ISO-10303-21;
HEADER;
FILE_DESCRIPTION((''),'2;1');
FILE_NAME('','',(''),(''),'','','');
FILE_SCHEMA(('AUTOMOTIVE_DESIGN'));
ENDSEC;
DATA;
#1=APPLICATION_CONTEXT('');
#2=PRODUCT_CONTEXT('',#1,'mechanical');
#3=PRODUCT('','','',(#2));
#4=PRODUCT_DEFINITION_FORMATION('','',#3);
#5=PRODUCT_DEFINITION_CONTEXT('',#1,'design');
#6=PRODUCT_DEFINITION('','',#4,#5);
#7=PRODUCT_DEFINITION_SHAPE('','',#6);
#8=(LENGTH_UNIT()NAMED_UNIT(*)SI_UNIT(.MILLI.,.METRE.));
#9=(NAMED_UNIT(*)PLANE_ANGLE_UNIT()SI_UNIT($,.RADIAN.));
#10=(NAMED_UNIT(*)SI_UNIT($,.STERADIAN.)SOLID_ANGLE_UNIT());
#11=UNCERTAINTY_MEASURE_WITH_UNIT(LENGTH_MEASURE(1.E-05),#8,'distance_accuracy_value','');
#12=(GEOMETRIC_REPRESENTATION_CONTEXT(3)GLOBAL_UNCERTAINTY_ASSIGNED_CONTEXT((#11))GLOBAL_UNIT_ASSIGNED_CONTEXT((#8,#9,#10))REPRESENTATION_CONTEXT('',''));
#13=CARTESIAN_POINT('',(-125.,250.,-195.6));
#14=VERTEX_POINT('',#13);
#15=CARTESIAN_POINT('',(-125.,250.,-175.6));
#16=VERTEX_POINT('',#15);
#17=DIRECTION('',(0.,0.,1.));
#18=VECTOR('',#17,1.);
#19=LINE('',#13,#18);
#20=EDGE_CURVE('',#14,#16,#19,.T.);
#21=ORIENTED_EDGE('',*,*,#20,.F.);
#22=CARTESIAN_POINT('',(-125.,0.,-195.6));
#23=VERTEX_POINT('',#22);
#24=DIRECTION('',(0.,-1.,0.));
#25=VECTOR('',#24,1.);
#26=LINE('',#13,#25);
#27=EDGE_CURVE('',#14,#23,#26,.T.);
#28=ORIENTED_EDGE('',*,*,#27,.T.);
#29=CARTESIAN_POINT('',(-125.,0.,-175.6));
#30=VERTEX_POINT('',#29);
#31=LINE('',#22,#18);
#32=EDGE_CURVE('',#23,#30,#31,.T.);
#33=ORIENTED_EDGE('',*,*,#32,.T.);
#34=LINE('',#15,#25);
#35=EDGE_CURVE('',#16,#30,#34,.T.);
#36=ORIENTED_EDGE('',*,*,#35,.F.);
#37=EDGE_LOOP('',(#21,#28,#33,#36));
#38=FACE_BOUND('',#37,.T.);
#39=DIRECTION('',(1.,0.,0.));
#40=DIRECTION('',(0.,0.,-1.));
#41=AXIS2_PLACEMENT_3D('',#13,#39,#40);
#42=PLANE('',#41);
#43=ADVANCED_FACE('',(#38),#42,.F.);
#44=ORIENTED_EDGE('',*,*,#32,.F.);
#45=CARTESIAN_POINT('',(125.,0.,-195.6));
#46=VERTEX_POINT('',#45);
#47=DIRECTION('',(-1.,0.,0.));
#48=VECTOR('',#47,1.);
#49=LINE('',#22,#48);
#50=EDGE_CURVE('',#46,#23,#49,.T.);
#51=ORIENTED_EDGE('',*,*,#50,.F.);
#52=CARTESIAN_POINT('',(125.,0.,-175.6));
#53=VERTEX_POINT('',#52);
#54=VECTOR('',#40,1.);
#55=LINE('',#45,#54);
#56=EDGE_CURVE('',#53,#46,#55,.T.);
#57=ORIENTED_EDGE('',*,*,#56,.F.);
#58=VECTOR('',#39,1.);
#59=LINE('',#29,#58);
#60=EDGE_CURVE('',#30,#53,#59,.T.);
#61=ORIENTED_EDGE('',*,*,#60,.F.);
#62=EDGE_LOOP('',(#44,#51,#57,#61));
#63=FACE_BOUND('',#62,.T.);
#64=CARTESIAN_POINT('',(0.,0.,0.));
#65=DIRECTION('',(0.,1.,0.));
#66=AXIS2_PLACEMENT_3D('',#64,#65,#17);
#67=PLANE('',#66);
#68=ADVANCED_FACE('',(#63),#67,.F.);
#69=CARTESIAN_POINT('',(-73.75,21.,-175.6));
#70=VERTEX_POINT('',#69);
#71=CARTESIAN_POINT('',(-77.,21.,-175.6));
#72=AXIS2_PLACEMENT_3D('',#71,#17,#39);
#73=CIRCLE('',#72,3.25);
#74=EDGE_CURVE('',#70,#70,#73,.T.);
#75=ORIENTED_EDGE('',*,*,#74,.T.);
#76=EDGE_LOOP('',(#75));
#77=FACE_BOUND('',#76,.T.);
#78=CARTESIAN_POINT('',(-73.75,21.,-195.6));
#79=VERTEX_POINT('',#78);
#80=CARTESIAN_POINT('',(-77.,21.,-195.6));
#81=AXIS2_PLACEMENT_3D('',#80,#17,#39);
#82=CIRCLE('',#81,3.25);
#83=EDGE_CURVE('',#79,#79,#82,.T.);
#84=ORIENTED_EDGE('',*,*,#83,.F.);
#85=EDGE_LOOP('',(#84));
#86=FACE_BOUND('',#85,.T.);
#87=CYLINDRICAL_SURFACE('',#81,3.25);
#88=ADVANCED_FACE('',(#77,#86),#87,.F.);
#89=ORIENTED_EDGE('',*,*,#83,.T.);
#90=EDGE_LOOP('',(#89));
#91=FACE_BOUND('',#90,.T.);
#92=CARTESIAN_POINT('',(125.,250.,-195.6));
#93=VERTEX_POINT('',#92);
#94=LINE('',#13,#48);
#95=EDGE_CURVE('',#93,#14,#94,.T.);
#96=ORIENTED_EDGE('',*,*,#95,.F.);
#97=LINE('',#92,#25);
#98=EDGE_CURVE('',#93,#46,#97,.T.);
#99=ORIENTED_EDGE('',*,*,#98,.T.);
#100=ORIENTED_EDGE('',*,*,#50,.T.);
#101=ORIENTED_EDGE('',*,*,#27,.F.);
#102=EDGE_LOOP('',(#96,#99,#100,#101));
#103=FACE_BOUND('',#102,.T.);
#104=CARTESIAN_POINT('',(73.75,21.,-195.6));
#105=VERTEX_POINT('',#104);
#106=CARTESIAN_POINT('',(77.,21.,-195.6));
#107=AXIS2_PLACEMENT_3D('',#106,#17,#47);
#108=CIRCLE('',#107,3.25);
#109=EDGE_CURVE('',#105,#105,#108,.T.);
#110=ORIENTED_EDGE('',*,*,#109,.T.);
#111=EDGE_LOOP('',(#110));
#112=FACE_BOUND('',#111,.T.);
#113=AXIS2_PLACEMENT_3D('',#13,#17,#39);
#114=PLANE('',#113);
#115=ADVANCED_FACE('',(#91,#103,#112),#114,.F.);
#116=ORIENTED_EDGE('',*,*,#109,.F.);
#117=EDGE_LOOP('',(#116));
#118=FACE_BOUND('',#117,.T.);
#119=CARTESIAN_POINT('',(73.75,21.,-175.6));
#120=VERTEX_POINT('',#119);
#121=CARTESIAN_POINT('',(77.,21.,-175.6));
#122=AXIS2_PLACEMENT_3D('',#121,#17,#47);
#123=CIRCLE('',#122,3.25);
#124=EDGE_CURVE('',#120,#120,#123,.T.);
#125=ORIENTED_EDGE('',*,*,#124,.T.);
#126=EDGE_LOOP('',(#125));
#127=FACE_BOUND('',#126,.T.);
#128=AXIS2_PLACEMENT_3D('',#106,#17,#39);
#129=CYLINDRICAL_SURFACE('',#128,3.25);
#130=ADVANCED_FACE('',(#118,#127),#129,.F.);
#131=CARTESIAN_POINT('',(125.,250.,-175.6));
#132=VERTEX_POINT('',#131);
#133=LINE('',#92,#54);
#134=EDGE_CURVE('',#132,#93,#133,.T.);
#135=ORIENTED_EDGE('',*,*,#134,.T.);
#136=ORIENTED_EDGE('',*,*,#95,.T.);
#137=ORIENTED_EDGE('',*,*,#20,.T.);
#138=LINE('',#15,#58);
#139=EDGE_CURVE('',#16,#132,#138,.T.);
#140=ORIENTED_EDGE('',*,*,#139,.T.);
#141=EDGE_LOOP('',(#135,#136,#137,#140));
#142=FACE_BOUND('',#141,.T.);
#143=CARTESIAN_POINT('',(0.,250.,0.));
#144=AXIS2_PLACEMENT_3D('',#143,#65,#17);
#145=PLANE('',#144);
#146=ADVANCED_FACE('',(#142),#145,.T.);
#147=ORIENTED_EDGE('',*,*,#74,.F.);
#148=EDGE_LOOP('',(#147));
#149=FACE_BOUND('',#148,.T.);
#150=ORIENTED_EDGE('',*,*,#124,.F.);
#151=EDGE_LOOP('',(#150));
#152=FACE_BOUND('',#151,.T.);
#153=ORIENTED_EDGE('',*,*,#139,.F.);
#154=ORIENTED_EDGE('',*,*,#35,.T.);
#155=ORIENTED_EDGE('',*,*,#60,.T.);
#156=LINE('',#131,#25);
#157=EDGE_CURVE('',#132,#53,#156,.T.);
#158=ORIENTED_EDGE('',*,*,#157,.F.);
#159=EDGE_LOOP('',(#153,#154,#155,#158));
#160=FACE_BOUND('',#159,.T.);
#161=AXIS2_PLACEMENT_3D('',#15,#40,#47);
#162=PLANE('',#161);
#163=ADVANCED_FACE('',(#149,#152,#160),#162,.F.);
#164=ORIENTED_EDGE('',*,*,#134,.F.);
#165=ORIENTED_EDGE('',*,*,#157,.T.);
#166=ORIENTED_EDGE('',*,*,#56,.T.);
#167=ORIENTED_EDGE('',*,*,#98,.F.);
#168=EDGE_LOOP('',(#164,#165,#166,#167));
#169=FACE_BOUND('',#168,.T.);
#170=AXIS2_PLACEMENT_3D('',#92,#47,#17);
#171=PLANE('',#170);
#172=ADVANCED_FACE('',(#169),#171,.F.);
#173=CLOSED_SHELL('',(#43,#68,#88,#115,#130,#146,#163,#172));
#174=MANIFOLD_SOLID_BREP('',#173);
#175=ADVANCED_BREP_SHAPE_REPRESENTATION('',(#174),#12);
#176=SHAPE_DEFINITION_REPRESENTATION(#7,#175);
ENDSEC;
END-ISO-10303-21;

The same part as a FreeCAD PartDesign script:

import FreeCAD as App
import Part
import Sketcher
from FreeCAD import Vector

doc = App.newDocument("Part")
body = doc.addObject("PartDesign::Body", "Body")

# Sketch on XZ plane
sketch1 = doc.addObject("Sketcher::SketchObject", "Sketch")
body.addObject(sketch1)
sketch1.AttachmentSupport = (doc.XZ_Plane, [""])
sketch1.MapMode = "FlatFace"
sketch1.addGeometry([
    Part.LineSegment(Vector(-125, -196, 0), Vector(-125, -176, 0)),
    Part.LineSegment(Vector(-125, -176, 0), Vector(125, -176, 0)),
    Part.LineSegment(Vector(125, -176, 0), Vector(125, -196, 0)),
    Part.LineSegment(Vector(125, -196, 0), Vector(-125, -196, 0)),
], False)
sketch1.addConstraint([
    Sketcher.Constraint("Coincident", 0, 2, 1, 1),
    Sketcher.Constraint("Coincident", 1, 2, 2, 1),
    Sketcher.Constraint("Coincident", 2, 2, 3, 1),
    Sketcher.Constraint("Coincident", 3, 2, 0, 1),
    Sketcher.Constraint("Vertical", 0),
    Sketcher.Constraint("Horizontal", 1),
    Sketcher.Constraint("Vertical", 2),
    Sketcher.Constraint("Horizontal", 3),
    Sketcher.Constraint("DistanceX", 1, 1, 1, 2, 250.0),
    Sketcher.Constraint("DistanceY", 0, 1, 0, 2, 20.0),
    Sketcher.Constraint("DistanceX", 0, 2, -1, 1, 125.0),
    Sketcher.Constraint("DistanceY", 0, 2, -1, 1, 175.6),
])
pad1 = doc.addObject("PartDesign::Pad", "Pad")
body.addObject(pad1)
pad1.Profile = sketch1
pad1.Length = 250
pad1.Reversed = True

# Sketch on XY plane
sketch2 = doc.addObject("Sketcher::SketchObject", "Sketch001")
body.addObject(sketch2)
sketch2.AttachmentSupport = (doc.XY_Plane, [""])
sketch2.MapMode = "FlatFace"
sketch2.AttachmentOffset = App.Placement(Vector(0, 0, -175.6), App.Rotation())
sketch2.addGeometry([
    Part.Circle(Vector(-77, 21, 0), Vector(0, 0, 1), 3.2),
    Part.Circle(Vector(77, 21, 0), Vector(0, 0, 1), 3.2),
], False)
sketch2.addConstraint([
    Sketcher.Constraint("Equal", 0, 1),
    Sketcher.Constraint("Symmetric", 0, 3, 1, 3, -2),
    Sketcher.Constraint("Diameter", 0, 6.5),
    Sketcher.Constraint("DistanceX", 0, 3, -1, 1, 77.0),
    Sketcher.Constraint("DistanceY", -1, 1, 0, 3, 21.0),
])
pocket1 = doc.addObject("PartDesign::Pocket", "Pocket")
body.addObject(pocket1)
pocket1.Profile = sketch2
pocket1.Type = "ThroughAll"

doc.recompute()
